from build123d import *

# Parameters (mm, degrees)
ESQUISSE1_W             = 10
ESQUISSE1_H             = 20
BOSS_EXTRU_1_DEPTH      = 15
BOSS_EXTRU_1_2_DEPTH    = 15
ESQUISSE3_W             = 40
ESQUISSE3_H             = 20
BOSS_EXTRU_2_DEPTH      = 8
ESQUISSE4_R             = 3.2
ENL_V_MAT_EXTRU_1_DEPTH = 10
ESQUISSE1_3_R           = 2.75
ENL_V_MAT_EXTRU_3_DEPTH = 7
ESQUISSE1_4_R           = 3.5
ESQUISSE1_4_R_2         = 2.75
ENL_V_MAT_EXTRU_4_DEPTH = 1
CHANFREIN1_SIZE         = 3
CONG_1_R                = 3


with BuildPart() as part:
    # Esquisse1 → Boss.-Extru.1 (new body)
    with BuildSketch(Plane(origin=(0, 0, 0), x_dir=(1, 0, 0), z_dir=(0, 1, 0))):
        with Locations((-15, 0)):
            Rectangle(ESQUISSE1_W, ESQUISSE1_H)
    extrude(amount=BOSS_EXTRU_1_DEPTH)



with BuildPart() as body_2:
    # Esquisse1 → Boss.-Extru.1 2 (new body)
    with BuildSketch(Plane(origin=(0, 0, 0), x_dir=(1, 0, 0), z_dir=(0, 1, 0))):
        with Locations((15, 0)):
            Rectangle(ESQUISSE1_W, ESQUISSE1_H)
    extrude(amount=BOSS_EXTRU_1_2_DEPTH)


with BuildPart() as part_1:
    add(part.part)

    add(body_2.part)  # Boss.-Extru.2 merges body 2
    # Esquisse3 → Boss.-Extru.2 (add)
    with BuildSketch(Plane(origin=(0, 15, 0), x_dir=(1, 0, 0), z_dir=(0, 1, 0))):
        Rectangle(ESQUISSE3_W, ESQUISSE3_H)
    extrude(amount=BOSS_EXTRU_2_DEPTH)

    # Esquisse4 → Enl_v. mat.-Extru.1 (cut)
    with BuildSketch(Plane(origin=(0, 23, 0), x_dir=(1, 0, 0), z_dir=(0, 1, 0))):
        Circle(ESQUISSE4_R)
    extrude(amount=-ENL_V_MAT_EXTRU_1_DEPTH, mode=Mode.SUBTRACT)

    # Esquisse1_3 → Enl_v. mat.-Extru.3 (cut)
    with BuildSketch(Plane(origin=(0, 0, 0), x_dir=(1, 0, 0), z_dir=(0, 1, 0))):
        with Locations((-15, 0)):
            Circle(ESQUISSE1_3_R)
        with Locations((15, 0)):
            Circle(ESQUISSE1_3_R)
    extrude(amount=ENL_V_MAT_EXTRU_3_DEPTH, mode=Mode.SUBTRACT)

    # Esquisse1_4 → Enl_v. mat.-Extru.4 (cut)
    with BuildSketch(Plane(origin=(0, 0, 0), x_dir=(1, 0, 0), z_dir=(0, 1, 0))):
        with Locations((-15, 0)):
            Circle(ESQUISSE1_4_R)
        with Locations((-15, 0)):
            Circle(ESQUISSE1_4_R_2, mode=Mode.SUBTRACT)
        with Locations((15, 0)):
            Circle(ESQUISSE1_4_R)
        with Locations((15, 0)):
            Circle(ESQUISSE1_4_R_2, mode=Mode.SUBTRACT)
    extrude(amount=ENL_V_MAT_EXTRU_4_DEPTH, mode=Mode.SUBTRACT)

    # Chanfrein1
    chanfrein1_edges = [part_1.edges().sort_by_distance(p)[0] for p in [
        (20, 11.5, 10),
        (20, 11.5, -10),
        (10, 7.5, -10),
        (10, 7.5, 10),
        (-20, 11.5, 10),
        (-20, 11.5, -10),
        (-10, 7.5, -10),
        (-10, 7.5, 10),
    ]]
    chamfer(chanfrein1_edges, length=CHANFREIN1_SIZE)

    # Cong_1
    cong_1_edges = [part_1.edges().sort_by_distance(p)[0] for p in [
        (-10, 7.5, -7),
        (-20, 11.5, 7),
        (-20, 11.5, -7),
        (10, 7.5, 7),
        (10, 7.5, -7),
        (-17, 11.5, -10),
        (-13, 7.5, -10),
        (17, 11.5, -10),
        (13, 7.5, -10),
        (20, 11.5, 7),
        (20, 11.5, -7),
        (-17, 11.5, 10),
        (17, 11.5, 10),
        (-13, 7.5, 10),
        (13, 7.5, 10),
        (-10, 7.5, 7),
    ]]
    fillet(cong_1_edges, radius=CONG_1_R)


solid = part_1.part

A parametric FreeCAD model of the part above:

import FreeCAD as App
import Part
import Sketcher
Q = App.Units.Quantity


def edges_at(feature, points):
    """Names of the edges that pass closest to the given points."""
    edges = feature.Shape.Edges
    near = lambda p: min(range(len(edges)), key=lambda i: edges[i].distToShape(Part.Vertex(*p))[0])
    return sorted({f"Edge{near(p) + 1}" for p in points})

doc = App.newDocument("Part")
body = doc.addObject("PartDesign::Body", "Body")

sketch1 = doc.addObject("Sketcher::SketchObject", "Sketch")
body.addObject(sketch1)
sketch1.AttachmentSupport = (doc.XZ_Plane, [""])
sketch1.MapMode = "FlatFace"
sketch1.addGeometry(Part.LineSegment(App.Vector(-20, -10, 0), App.Vector(-20, 10, 0)), False)
sketch1.addGeometry(Part.LineSegment(App.Vector(-20, 10, 0), App.Vector(-10, 10, 0)), False)
sketch1.addGeometry(Part.LineSegment(App.Vector(-10, 10, 0), App.Vector(-10, -10, 0)), False)
sketch1.addGeometry(Part.LineSegment(App.Vector(-10, -10, 0), App.Vector(-20, -10, 0)), False)
sketch1.addConstraint(Sketcher.Constraint("Coincident", 0, 2, 1, 1))
sketch1.addConstraint(Sketcher.Constraint("Coincident", 1, 2, 2, 1))
sketch1.addConstraint(Sketcher.Constraint("Coincident", 2, 2, 3, 1))
sketch1.addConstraint(Sketcher.Constraint("Coincident", 3, 2, 0, 1))
sketch1.addConstraint(Sketcher.Constraint("Vertical", 0))
sketch1.addConstraint(Sketcher.Constraint("Horizontal", 1))
sketch1.addConstraint(Sketcher.Constraint("Vertical", 2))
sketch1.addConstraint(Sketcher.Constraint("Horizontal", 3))
sketch1.addConstraint(Sketcher.Constraint("DistanceX", 1, 1, 1, 2, Q("10 mm")))
sketch1.addConstraint(Sketcher.Constraint("DistanceY", 0, 1, 0, 2, Q("20 mm")))
sketch1.addConstraint(Sketcher.Constraint("DistanceX", 0, 2, -1, 1, Q("20 mm")))
sketch1.addConstraint(Sketcher.Constraint("DistanceY", -1, 1, 0, 2, Q("10 mm")))
pad1 = doc.addObject("PartDesign::Pad", "Pad")
body.addObject(pad1)
pad1.Profile = sketch1
pad1.Length = 15
pad1.Reversed = True
body2 = doc.addObject("PartDesign::Body", "Body001")

sketch2 = doc.addObject("Sketcher::SketchObject", "Sketch001")
body2.addObject(sketch2)
sketch2.AttachmentSupport = (doc.getObject("XZ_Plane001"), [""])
sketch2.MapMode = "FlatFace"
sketch2.addGeometry(Part.LineSegment(App.Vector(10, -10, 0), App.Vector(10, 10, 0)), False)
sketch2.addGeometry(Part.LineSegment(App.Vector(10, 10, 0), App.Vector(20, 10, 0)), False)
sketch2.addGeometry(Part.LineSegment(App.Vector(20, 10, 0), App.Vector(20, -10, 0)), False)
sketch2.addGeometry(Part.LineSegment(App.Vector(20, -10, 0), App.Vector(10, -10, 0)), False)
sketch2.addConstraint(Sketcher.Constraint("Coincident", 0, 2, 1, 1))
sketch2.addConstraint(Sketcher.Constraint("Coincident", 1, 2, 2, 1))
sketch2.addConstraint(Sketcher.Constraint("Coincident", 2, 2, 3, 1))
sketch2.addConstraint(Sketcher.Constraint("Coincident", 3, 2, 0, 1))
sketch2.addConstraint(Sketcher.Constraint("Vertical", 0))
sketch2.addConstraint(Sketcher.Constraint("Horizontal", 1))
sketch2.addConstraint(Sketcher.Constraint("Vertical", 2))
sketch2.addConstraint(Sketcher.Constraint("Horizontal", 3))
sketch2.addConstraint(Sketcher.Constraint("DistanceX", 1, 1, 1, 2, Q("10 mm")))
sketch2.addConstraint(Sketcher.Constraint("DistanceY", 0, 1, 0, 2, Q("20 mm")))
sketch2.addConstraint(Sketcher.Constraint("DistanceX", -1, 1, 0, 2, Q("10 mm")))
sketch2.addConstraint(Sketcher.Constraint("DistanceY", -1, 1, 0, 2, Q("10 mm")))
pad2 = doc.addObject("PartDesign::Pad", "Pad001")
body2.addObject(pad2)
pad2.Profile = sketch2
pad2.Length = 15
pad2.Reversed = True
body.AllowCompound = True
doc.recompute()

boolean = doc.addObject("PartDesign::Boolean", "Boolean")
body.addObject(boolean)
boolean.Type = "Fuse"
boolean.addObjects([body2])

sketch3 = doc.addObject("Sketcher::SketchObject", "Sketch002")
body.addObject(sketch3)
sketch3.AttachmentSupport = (doc.XZ_Plane, [""])
sketch3.MapMode = "FlatFace"
sketch3.AttachmentOffset = App.Placement(App.Vector(0, 0, -15), App.Rotation())
sketch3.addGeometry(Part.LineSegment(App.Vector(-20, -10, 0), App.Vector(-20, 10, 0)), False)
sketch3.addGeometry(Part.LineSegment(App.Vector(-20, 10, 0), App.Vector(20, 10, 0)), False)
sketch3.addGeometry(Part.LineSegment(App.Vector(20, 10, 0), App.Vector(20, -10, 0)), False)
sketch3.addGeometry(Part.LineSegment(App.Vector(20, -10, 0), App.Vector(-20, -10, 0)), False)
sketch3.addConstraint(Sketcher.Constraint("Coincident", 0, 2, 1, 1))
sketch3.addConstraint(Sketcher.Constraint("Coincident", 1, 2, 2, 1))
sketch3.addConstraint(Sketcher.Constraint("Coincident", 2, 2, 3, 1))
sketch3.addConstraint(Sketcher.Constraint("Coincident", 3, 2, 0, 1))
sketch3.addConstraint(Sketcher.Constraint("Vertical", 0))
sketch3.addConstraint(Sketcher.Constraint("Horizontal", 1))
sketch3.addConstraint(Sketcher.Constraint("Vertical", 2))
sketch3.addConstraint(Sketcher.Constraint("Horizontal", 3))
sketch3.addConstraint(Sketcher.Constraint("Symmetric", 0, 2, 2, 2, -1, 1))
sketch3.addConstraint(Sketcher.Constraint("DistanceX", 1, 1, 1, 2, Q("40 mm")))
sketch3.addConstraint(Sketcher.Constraint("DistanceY", 0, 1, 0, 2, Q("20 mm")))
pad3 = doc.addObject("PartDesign::Pad", "Pad002")
body.addObject(pad3)
pad3.Profile = sketch3
pad3.Length = 8
pad3.Reversed = True

sketch4 = doc.addObject("Sketcher::SketchObject", "Sketch003")
body.addObject(sketch4)
sketch4.AttachmentSupport = (doc.XZ_Plane, [""])
sketch4.MapMode = "FlatFace"
sketch4.AttachmentOffset = App.Placement(App.Vector(0, 0, -23), App.Rotation())
sketch4.addGeometry(Part.Circle(App.Vector(0, 0, 0), App.Vector(0, 0, 1), 3.2), False)
sketch4.addConstraint(Sketcher.Constraint("Coincident", 0, 3, -1, 1))
sketch4.addConstraint(Sketcher.Constraint("Diameter", 0, Q("6.4 mm")))
pocket1 = doc.addObject("PartDesign::Pocket", "Pocket")
body.addObject(pocket1)
pocket1.Profile = sketch4
pocket1.Length = 10
pocket1.Reversed = True

sketch5 = doc.addObject("Sketcher::SketchObject", "Sketch004")
body.addObject(sketch5)
sketch5.AttachmentSupport = (doc.XZ_Plane, [""])
sketch5.MapMode = "FlatFace"
sketch5.addGeometry(Part.Circle(App.Vector(-15, 0, 0), App.Vector(0, 0, 1), 2.8), False)
sketch5.addGeometry(Part.Circle(App.Vector(15, 0, 0), App.Vector(0, 0, 1), 2.8), False)
sketch5.addConstraint(Sketcher.Constraint("Equal", 0, 1))
sketch5.addConstraint(Sketcher.Constraint("Symmetric", 0, 3, 1, 3, -1, 1))
sketch5.addConstraint(Sketcher.Constraint("PointOnObject", 0, 3, -1))
sketch5.addConstraint(Sketcher.Constraint("Diameter", 0, Q("5.5 mm")))
sketch5.addConstraint(Sketcher.Constraint("DistanceX", 0, 3, -1, 1, Q("15 mm")))
pocket2 = doc.addObject("PartDesign::Pocket", "Pocket001")
body.addObject(pocket2)
pocket2.Profile = sketch5
pocket2.Length = 7

sketch6 = doc.addObject("Sketcher::SketchObject", "Sketch005")
body.addObject(sketch6)
sketch6.AttachmentSupport = (doc.XZ_Plane, [""])
sketch6.MapMode = "FlatFace"
sketch6.addGeometry(Part.Circle(App.Vector(-15, 0, 0), App.Vector(0, 0, 1), 3.5), False)
sketch6.addGeometry(Part.Circle(App.Vector(-15, 0, 0), App.Vector(0, 0, 1), 2.8), False)
sketch6.addGeometry(Part.Circle(App.Vector(15, 0, 0), App.Vector(0, 0, 1), 3.5), False)
sketch6.addGeometry(Part.Circle(App.Vector(15, 0, 0), App.Vector(0, 0, 1), 2.8), False)
sketch6.addConstraint(Sketcher.Constraint("Coincident", 1, 3, 0, 3))
sketch6.addConstraint(Sketcher.Constraint("Coincident", 3, 3, 2, 3))
sketch6.addConstraint(Sketcher.Constraint("Equal", 0, 2))
sketch6.addConstraint(Sketcher.Constraint("Equal", 1, 3))
sketch6.addConstraint(Sketcher.Constraint("Symmetric", 0, 3, 2, 3, -1, 1))
sketch6.addConstraint(Sketcher.Constraint("PointOnObject", 0, 3, -1))
sketch6.addConstraint(Sketcher.Constraint("Diameter", 0, Q("7 mm")))
sketch6.addConstraint(Sketcher.Constraint("Diameter", 1, Q("5.5 mm")))
sketch6.addConstraint(Sketcher.Constraint("DistanceX", 0, 3, -1, 1, Q("15 mm")))
pocket3 = doc.addObject("PartDesign::Pocket", "Pocket002")
body.addObject(pocket3)
pocket3.Profile = sketch6
pocket3.Length = 1
doc.recompute()

chamfer = doc.addObject("PartDesign::Chamfer", "Chamfer")
body.addObject(chamfer)
chamfer.Base = (pocket3, edges_at(pocket3, [
    (20, 11.5, 10),
    (20, 11.5, -10),
    (10, 7.5, -10),
    (10, 7.5, 10),
    (-20, 11.5, 10),
    (-20, 11.5, -10),
    (-10, 7.5, -10),
    (-10, 7.5, 10),
]))
chamfer.Size = 3
doc.recompute()

fillet = doc.addObject("PartDesign::Fillet", "Fillet")
body.addObject(fillet)
fillet.Base = (chamfer, edges_at(chamfer, [
    (-10, 7.5, -7),
    (-20, 11.5, 7),
    (-20, 11.5, -7),
    (10, 7.5, 7),
    (10, 7.5, -7),
    (-17, 11.5, -10),
    (-13, 7.5, -10),
    (17, 11.5, -10),
    (13, 7.5, -10),
    (20, 11.5, 7),
    (20, 11.5, -7),
    (-17, 11.5, 10),
    (17, 11.5, 10),
    (-13, 7.5, 10),
    (13, 7.5, 10),
    (-10, 7.5, 7),
]))
fillet.Radius = 3

doc.recompute()
